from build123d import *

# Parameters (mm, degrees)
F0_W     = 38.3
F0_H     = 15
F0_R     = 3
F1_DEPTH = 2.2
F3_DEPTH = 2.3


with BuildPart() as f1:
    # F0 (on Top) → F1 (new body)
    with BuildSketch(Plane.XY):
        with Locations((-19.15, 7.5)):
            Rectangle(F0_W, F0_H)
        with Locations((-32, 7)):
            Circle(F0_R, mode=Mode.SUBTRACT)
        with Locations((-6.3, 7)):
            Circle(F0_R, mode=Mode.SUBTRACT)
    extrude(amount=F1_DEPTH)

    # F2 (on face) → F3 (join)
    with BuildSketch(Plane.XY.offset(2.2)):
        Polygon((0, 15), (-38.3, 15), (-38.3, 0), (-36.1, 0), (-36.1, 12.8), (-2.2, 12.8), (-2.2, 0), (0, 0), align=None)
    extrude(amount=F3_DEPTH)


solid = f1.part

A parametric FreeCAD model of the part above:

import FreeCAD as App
import Part
import Sketcher
from FreeCAD import Vector

doc = App.newDocument("Part")
body = doc.addObject("PartDesign::Body", "Body")

sketch1 = body.newObject("Sketcher::SketchObject", "Sketch")
sketch1.AttachmentSupport = (doc.getObject("XY_Plane"), [""])
sketch1.MapMode = "FlatFace"
sketch1.addGeometry([
    Part.LineSegment(Vector(-38.3, 15, 0), Vector(-38.3, 0, 0)),
    Part.LineSegment(Vector(-38.3, 0, 0), Vector(0, 0, 0)),
    Part.LineSegment(Vector(0, 0, 0), Vector(0, 15, 0)),
    Part.LineSegment(Vector(0, 15, 0), Vector(-38.3, 15, 0)),
    Part.Circle(Vector(-32, 7, 0), Vector(0, 0, 1), 3),
    Part.Circle(Vector(-6.3, 7, 0), Vector(0, 0, 1), 3),
], False)
sketch1.addConstraint([
    Sketcher.Constraint("Coincident", 0, 2, 1, 1),
    Sketcher.Constraint("Coincident", 1, 2, 2, 1),
    Sketcher.Constraint("Coincident", 2, 2, 3, 1),
    Sketcher.Constraint("Coincident", 3, 2, 0, 1),
    Sketcher.Constraint("Vertical", 0),
    Sketcher.Constraint("Horizontal", 1),
    Sketcher.Constraint("Vertical", 2),
    Sketcher.Constraint("Horizontal", 3),
    Sketcher.Constraint("Coincident", 1, 2, -1, 1),
    Sketcher.Constraint("Equal", 4, 5),
    Sketcher.Constraint("Horizontal", 4, 3, 5, 3),
    Sketcher.Constraint("Diameter", 4, 6.0),
    Sketcher.Constraint("DistanceY", 0, 2, 0, 1, 15.0),
    Sketcher.Constraint("DistanceX", 1, 1, 1, 2, 38.3),
    Sketcher.Constraint("DistanceX", 4, 3, -1, 1, 32.0),
    Sketcher.Constraint("DistanceY", -1, 1, 4, 3, 7.0),
    Sketcher.Constraint("DistanceX", 0, 2, 5, 3, 32.0),
])
pad1 = body.newObject("PartDesign::Pad", "Pad")
pad1.Profile = sketch1
pad1.Length = 2.2

sketch2 = body.newObject("Sketcher::SketchObject", "Sketch001")
sketch2.AttachmentSupport = (doc.getObject("XY_Plane"), [""])
sketch2.MapMode = "FlatFace"
sketch2.AttachmentOffset = App.Placement(Vector(0, 0, 2.2), App.Rotation())
sketch2.addGeometry([
    Part.LineSegment(Vector(0, 15, 0), Vector(-38.3, 15, 0)),
    Part.LineSegment(Vector(-38.3, 15, 0), Vector(-38.3, 0, 0)),
    Part.LineSegment(Vector(-38.3, 0, 0), Vector(-36.1, 0, 0)),
    Part.LineSegment(Vector(-36.1, 0, 0), Vector(-36.1, 12.8, 0)),
    Part.LineSegment(Vector(-36.1, 12.8, 0), Vector(-2.2, 12.8, 0)),
    Part.LineSegment(Vector(-2.2, 12.8, 0), Vector(-2.2, 0, 0)),
    Part.LineSegment(Vector(-2.2, 0, 0), Vector(0, 0, 0)),
    Part.LineSegment(Vector(0, 0, 0), Vector(0, 15, 0)),
], False)
sketch2.addConstraint([
    Sketcher.Constraint("Coincident", 0, 2, 1, 1),
    Sketcher.Constraint("Coincident", 1, 2, 2, 1),
    Sketcher.Constraint("Coincident", 2, 2, 3, 1),
    Sketcher.Constraint("Coincident", 3, 2, 4, 1),
    Sketcher.Constraint("Coincident", 4, 2, 5, 1),
    Sketcher.Constraint("Coincident", 5, 2, 6, 1),
    Sketcher.Constraint("Coincident", 6, 2, 7, 1),
    Sketcher.Constraint("Coincident", 7, 2, 0, 1),
    Sketcher.Constraint("Horizontal", 0),
    Sketcher.Constraint("Vertical", 1),
    Sketcher.Constraint("Horizontal", 2),
    Sketcher.Constraint("Vertical", 3),
    Sketcher.Constraint("Horizontal", 4),
    Sketcher.Constraint("Vertical", 5),
    Sketcher.Constraint("Horizontal", 6),
    Sketcher.Constraint("Vertical", 7),
    Sketcher.Constraint("Coincident", 6, 2, -1, 1),
    Sketcher.Constraint("PointOnObject", 1, 2, -1),
    Sketcher.Constraint("Equal", 2, 6),
    Sketcher.Constraint("DistanceY", 1, 2, 1, 1, 15.0),
    Sketcher.Constraint("DistanceX", 0, 2, 0, 1, 38.3),
    Sketcher.Constraint("DistanceX", 2, 1, 2, 2, 2.2),
    Sketcher.Constraint("DistanceY", 3, 1, 3, 2, 12.8),
])
pad2 = body.newObject("PartDesign::Pad", "Pad001")
pad2.Profile = sketch2
pad2.Length = 2.3

doc.recompute()
